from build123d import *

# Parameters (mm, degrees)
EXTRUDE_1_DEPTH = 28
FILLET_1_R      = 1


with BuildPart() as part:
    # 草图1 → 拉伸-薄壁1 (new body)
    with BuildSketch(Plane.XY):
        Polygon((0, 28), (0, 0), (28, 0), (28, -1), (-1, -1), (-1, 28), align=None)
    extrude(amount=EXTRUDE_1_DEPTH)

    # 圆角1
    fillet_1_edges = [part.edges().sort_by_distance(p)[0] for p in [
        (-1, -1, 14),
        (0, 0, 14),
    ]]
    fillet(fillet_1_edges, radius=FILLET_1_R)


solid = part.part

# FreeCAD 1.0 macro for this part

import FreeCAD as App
import Part
import Sketcher
Q = App.Units.Quantity


def edges_at(feature, points):
    """Names of the edges that pass closest to the given points."""
    edges = feature.Shape.Edges
    near = lambda p: min(range(len(edges)), key=lambda i: edges[i].distToShape(Part.Vertex(*p))[0])
    return sorted({f"Edge{near(p) + 1}" for p in points})

doc = App.newDocument("Part")
body = doc.addObject("PartDesign::Body", "Body")

# Sketch on XY plane
sketch1 = body.newObject("Sketcher::SketchObject", "Sketch")
sketch1.AttachmentSupport = (doc.getObject("XY_Plane"), [""])
sketch1.MapMode = "FlatFace"
sketch1.addGeometry(Part.LineSegment(App.Vector(0, 0, 0), App.Vector(0, 28, 0)), False)
sketch1.addGeometry(Part.LineSegment(App.Vector(0, 28, 0), App.Vector(-1, 28, 0)), False)
sketch1.addGeometry(Part.LineSegment(App.Vector(-1, 28, 0), App.Vector(-1, -1, 0)), False)
sketch1.addGeometry(Part.LineSegment(App.Vector(-1, -1, 0), App.Vector(28, -1, 0)), False)
sketch1.addGeometry(Part.LineSegment(App.Vector(28, -1, 0), App.Vector(28, 0, 0)), False)
sketch1.addGeometry(Part.LineSegment(App.Vector(28, 0, 0), App.Vector(0, 0, 0)), False)
sketch1.addConstraint(Sketcher.Constraint("Coincident", 0, 2, 1, 1))
sketch1.addConstraint(Sketcher.Constraint("Coincident", 1, 2, 2, 1))
sketch1.addConstraint(Sketcher.Constraint("Coincident", 2, 2, 3, 1))
sketch1.addConstraint(Sketcher.Constraint("Coincident", 3, 2, 4, 1))
sketch1.addConstraint(Sketcher.Constraint("Coincident", 4, 2, 5, 1))
sketch1.addConstraint(Sketcher.Constraint("Coincident", 5, 2, 0, 1))
sketch1.addConstraint(Sketcher.Constraint("Vertical", 0))
sketch1.addConstraint(Sketcher.Constraint("Horizontal", 1))
sketch1.addConstraint(Sketcher.Constraint("Vertical", 2))
sketch1.addConstraint(Sketcher.Constraint("Horizontal", 3))
sketch1.addConstraint(Sketcher.Constraint("Vertical", 4))
sketch1.addConstraint(Sketcher.Constraint("Horizontal", 5))
sketch1.addConstraint(Sketcher.Constraint("Coincident", 5, 2, -1, 1))
sketch1.addConstraint(Sketcher.Constraint("Equal", 5, 0))
sketch1.addConstraint(Sketcher.Constraint("Equal", 3, 2))
sketch1.addConstraint(Sketcher.Constraint("DistanceX", 1, 2, 1, 1, Q("1 mm")))
sketch1.addConstraint(Sketcher.Constraint("DistanceX", 3, 1, 3, 2, Q("29 mm")))
pad1 = body.newObject("PartDesign::Pad", "Pad")
pad1.Profile = sketch1
pad1.Length = 28
doc.recompute()

fillet = body.newObject("PartDesign::Fillet", "Fillet")
fillet.Base = (pad1, edges_at(pad1, [(-1, -1, 14), (0, 0, 14)]))
fillet.Radius = 1

doc.recompute()
